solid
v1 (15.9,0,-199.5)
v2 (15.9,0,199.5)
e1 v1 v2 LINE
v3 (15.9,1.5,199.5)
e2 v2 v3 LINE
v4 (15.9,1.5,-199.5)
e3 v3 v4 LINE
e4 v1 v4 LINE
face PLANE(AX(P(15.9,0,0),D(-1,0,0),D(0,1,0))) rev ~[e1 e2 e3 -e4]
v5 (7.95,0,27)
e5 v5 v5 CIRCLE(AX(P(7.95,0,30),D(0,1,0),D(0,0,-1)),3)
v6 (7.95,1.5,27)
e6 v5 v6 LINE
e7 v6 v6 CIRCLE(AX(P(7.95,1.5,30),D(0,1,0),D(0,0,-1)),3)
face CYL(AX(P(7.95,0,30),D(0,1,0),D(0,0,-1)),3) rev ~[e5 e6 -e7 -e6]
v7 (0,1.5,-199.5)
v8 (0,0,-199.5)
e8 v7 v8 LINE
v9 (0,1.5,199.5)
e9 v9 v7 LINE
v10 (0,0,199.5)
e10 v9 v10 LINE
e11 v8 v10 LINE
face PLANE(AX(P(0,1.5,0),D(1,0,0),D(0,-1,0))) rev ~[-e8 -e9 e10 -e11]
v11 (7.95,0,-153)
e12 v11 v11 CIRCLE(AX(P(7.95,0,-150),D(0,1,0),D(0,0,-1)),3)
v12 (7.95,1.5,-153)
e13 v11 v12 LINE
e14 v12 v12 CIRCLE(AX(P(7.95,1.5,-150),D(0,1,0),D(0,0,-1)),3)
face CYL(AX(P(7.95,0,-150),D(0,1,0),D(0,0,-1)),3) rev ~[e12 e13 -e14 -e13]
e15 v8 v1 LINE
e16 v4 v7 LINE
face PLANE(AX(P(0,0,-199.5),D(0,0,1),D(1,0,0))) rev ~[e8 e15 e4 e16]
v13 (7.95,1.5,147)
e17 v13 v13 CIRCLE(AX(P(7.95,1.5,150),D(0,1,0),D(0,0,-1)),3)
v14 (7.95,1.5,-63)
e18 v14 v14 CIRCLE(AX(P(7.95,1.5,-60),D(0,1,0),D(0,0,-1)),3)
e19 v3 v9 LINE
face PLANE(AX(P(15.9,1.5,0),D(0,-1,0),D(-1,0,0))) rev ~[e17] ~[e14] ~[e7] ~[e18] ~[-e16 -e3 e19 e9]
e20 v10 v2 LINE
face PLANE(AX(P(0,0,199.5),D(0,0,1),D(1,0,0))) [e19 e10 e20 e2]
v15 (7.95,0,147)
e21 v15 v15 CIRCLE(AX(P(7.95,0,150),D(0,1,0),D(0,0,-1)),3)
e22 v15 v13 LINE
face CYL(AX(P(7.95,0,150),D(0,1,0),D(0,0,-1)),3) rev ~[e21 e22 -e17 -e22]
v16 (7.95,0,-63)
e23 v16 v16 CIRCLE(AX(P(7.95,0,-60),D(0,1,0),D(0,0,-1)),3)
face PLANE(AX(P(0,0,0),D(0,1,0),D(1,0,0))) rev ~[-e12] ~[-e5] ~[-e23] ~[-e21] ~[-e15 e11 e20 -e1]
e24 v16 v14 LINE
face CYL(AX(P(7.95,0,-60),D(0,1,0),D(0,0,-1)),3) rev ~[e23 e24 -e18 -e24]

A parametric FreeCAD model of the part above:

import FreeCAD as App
import Part
import Sketcher

V = App.Vector
Q = App.Units.Quantity


def add_polygon(sketch, points):
    """Adds a closed chain of lines whose ends are joined by coincident constraints."""
    first, n = sketch.GeometryCount, len(points)
    for a, b in zip(points, points[1:] + points[:1]):
        sketch.addGeometry(Part.LineSegment(App.Vector(*a, 0), App.Vector(*b, 0)), False)
    for i in range(n):
        sketch.addConstraint(Sketcher.Constraint("Coincident", first + i, 2, first + (i + 1) % n, 1))

doc = App.newDocument("Part")
body = doc.addObject("PartDesign::Body", "Body")

# Sketch on XY plane
sketch1 = doc.addObject("Sketcher::SketchObject", "Sketch")
body.addObject(sketch1)
sketch1.AttachmentSupport = (doc.XY_Plane, [""])
sketch1.MapMode = "FlatFace"
add_polygon(sketch1, [(0, 1.5), (0, 0), (15.9, 0), (15.9, 1.5)])  # lines 0-3
sketch1.addConstraint([
    Sketcher.Constraint("Vertical", 0),
    Sketcher.Constraint("Horizontal", 1),
    Sketcher.Constraint("Vertical", 2),
    Sketcher.Constraint("Horizontal", 3),
    Sketcher.Constraint("Coincident", 0, 2, -1, 1),
    Sketcher.Constraint("DistanceX", 1, 1, 1, 2, Q("15.9 mm")),
    Sketcher.Constraint("DistanceY", 0, 2, 0, 1, Q("1.5 mm")),
])
pad1 = doc.addObject("PartDesign::Pad", "Pad")
body.addObject(pad1)
pad1.Profile = sketch1
pad1.Length = 399
pad1.Midplane = True

# Sketch on XZ plane
sketch2 = doc.addObject("Sketcher::SketchObject", "Sketch001")
body.addObject(sketch2)
sketch2.AttachmentSupport = (doc.XZ_Plane, [""])
sketch2.MapMode = "FlatFace"
sketch2.addGeometry([
    Part.Circle(V(8, -150, 0), V(0, 0, 1), 3),
    Part.Circle(V(8, -60, 0), V(0, 0, 1), 3),
    Part.Circle(V(8, 30, 0), V(0, 0, 1), 3),
    Part.Circle(V(8, 150, 0), V(0, 0, 1), 3),
], False)
sketch2.addConstraint([
    Sketcher.Constraint("Equal", 0, 1),
    Sketcher.Constraint("Equal", 1, 2),
    Sketcher.Constraint("Equal", 2, 3),
    Sketcher.Constraint("Symmetric", 0, 3, 3, 3, -1),
    Sketcher.Constraint("Vertical", 0, 3, 1, 3),
    Sketcher.Constraint("Vertical", 1, 3, 2, 3),
    Sketcher.Constraint("Diameter", 0, Q("6 mm")),
    Sketcher.Constraint("DistanceY", 0, 3, -1, 1, Q("150 mm")),
    Sketcher.Constraint("DistanceY", 1, 3, -1, 1, Q("60 mm")),
    Sketcher.Constraint("DistanceY", -1, 1, 2, 3, Q("30 mm")),
    Sketcher.Constraint("DistanceX", -1, 1, 0, 3, Q("7.95 mm")),
])
doc.recompute()
hole = doc.addObject("PartDesign::Hole", "Hole")
body.addObject(hole)
hole.Profile = sketch2
hole.ThreadType = "None"
hole.Diameter = 6
hole.DepthType = "ThroughAll"

doc.recompute()
